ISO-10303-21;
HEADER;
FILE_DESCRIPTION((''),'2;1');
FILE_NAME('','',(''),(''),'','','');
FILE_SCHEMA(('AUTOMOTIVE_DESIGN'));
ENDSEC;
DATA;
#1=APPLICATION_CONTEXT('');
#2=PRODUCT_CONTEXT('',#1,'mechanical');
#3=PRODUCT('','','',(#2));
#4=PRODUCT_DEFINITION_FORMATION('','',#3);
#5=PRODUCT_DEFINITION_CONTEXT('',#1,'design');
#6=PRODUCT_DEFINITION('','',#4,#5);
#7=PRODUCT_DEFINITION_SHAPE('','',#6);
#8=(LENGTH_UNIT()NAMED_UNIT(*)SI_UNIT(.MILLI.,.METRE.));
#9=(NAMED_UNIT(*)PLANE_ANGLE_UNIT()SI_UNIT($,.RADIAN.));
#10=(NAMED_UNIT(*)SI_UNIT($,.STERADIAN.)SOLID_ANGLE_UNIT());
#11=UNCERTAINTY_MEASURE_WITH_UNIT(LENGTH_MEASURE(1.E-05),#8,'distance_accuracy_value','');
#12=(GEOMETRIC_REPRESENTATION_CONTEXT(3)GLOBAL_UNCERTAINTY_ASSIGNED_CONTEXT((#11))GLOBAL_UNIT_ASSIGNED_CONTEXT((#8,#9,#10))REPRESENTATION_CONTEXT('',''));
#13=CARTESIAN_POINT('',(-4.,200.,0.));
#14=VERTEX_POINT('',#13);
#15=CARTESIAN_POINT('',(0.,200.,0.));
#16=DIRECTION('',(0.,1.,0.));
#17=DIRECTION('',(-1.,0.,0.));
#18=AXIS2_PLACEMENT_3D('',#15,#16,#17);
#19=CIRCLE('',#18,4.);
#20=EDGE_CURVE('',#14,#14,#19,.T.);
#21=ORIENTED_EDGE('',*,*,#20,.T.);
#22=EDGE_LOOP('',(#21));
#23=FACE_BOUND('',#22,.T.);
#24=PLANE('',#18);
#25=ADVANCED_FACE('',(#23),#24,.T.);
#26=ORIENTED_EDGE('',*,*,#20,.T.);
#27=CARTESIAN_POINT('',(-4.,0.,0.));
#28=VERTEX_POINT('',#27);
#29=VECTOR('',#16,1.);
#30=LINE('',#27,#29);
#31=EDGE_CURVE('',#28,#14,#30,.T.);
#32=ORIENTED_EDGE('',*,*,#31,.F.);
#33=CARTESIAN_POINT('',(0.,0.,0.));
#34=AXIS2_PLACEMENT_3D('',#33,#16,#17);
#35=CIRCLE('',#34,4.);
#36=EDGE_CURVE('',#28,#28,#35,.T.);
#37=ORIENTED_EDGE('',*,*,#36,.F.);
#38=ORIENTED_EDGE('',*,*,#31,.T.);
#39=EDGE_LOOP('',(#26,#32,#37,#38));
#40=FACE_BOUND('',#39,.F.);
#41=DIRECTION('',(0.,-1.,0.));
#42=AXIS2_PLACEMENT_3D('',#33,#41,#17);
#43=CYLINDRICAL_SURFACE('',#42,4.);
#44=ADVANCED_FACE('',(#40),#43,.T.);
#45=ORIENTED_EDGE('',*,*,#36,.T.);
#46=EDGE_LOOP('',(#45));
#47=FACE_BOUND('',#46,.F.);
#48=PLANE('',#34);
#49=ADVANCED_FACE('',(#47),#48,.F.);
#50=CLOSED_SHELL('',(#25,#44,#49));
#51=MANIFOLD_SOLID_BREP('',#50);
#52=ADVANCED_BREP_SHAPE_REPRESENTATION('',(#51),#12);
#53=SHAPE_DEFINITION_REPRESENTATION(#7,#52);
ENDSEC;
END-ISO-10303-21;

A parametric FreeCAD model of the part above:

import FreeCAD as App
import Part
import Sketcher

V = App.Vector
Q = App.Units.Quantity

doc = App.newDocument("Part")
body = doc.addObject("PartDesign::Body", "Body")

sketch1 = body.newObject("Sketcher::SketchObject", "Sketch")
sketch1.AttachmentSupport = (doc.getObject("XZ_Plane"), [""])
sketch1.MapMode = "FlatFace"
sketch1.addGeometry(Part.Circle(V(0, 0, 0), V(0, 0, 1), 4), False)
sketch1.addConstraint(Sketcher.Constraint("Coincident", 0, 3, -1, 1))
sketch1.addConstraint(Sketcher.Constraint("Diameter", 0, Q("8 mm")))
pad1 = body.newObject("PartDesign::Pad", "Pad")
pad1.Profile = sketch1
pad1.Length = 200
pad1.Reversed = True

doc.recompute()
